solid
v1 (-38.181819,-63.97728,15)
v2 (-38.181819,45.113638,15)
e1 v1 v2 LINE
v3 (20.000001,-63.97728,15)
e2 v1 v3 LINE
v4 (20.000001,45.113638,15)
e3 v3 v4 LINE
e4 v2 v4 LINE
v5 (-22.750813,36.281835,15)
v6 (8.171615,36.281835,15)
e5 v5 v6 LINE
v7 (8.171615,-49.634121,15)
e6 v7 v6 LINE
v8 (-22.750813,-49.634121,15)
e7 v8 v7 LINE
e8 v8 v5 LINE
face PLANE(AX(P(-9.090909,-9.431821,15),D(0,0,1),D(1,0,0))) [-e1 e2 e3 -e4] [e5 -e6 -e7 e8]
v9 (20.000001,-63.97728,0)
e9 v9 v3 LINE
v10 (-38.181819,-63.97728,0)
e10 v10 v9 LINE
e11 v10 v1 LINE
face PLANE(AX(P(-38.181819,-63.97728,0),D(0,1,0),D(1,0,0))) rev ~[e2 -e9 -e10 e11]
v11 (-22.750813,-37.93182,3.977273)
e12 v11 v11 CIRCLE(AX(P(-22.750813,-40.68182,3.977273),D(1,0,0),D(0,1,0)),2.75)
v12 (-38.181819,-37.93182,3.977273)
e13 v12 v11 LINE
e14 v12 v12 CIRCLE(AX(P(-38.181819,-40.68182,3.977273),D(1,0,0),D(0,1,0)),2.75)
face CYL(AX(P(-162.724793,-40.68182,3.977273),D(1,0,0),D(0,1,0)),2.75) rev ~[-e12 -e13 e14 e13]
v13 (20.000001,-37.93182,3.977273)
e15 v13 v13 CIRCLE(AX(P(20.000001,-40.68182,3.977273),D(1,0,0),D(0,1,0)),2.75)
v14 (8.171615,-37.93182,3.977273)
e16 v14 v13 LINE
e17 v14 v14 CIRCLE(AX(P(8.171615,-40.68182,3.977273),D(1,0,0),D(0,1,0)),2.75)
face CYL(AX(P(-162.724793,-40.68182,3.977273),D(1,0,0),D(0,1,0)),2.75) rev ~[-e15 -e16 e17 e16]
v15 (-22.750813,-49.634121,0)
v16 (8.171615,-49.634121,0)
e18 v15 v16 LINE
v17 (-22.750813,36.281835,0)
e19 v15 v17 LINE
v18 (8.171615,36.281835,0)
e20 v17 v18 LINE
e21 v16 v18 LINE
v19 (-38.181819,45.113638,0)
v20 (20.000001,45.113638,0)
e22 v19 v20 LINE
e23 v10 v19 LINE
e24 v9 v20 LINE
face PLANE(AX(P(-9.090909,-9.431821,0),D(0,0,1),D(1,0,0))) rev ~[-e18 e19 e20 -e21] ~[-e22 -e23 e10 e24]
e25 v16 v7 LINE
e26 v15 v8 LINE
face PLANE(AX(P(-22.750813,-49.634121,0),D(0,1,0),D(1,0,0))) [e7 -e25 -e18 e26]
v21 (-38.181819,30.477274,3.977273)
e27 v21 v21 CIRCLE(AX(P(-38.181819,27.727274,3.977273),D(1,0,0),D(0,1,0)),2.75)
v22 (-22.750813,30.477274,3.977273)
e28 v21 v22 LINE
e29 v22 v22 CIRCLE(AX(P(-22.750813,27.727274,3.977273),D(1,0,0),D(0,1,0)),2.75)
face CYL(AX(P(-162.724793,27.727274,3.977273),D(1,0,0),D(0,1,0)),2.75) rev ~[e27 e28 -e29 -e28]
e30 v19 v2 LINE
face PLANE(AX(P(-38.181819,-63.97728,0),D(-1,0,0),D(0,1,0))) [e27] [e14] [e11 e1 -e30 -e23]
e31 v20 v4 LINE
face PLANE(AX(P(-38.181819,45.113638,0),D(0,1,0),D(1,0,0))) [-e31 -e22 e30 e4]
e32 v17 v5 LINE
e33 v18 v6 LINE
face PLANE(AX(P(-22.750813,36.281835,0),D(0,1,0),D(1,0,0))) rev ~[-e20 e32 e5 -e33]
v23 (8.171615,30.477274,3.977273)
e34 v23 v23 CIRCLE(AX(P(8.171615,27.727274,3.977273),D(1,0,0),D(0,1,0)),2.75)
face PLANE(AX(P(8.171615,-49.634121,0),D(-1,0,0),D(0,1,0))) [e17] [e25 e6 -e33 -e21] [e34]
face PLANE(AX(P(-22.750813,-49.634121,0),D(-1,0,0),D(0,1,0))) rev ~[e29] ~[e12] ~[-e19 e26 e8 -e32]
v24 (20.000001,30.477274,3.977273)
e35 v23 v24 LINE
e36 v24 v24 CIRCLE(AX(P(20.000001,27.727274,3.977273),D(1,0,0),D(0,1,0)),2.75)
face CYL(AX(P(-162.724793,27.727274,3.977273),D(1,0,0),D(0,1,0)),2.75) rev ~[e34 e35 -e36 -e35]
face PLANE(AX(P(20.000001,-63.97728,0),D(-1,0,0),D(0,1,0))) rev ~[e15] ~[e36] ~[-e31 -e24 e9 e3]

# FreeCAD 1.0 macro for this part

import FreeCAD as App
import Part
import Sketcher
from FreeCAD import Vector
Q = App.Units.Quantity


def add_polygon(sketch, points):
    """Adds a closed chain of lines whose ends are joined by coincident constraints."""
    first, n = sketch.GeometryCount, len(points)
    for a, b in zip(points, points[1:] + points[:1]):
        sketch.addGeometry(Part.LineSegment(App.Vector(*a, 0), App.Vector(*b, 0)), False)
    for i in range(n):
        sketch.addConstraint(Sketcher.Constraint("Coincident", first + i, 2, first + (i + 1) % n, 1))

doc = App.newDocument("Part")
body = doc.addObject("PartDesign::Body", "Body")

# Sketch on XY plane
sketch1 = doc.addObject("Sketcher::SketchObject", "Sketch")
body.addObject(sketch1)
sketch1.AttachmentSupport = (doc.XY_Plane, [""])
sketch1.MapMode = "FlatFace"
add_polygon(sketch1, [(-38.181819, 45.113638), (-38.181819, -63.97728), (20.000001, -63.97728), (20.000001, 45.113638)])  # lines 0-3
add_polygon(sketch1, [(8.171615, -49.634121), (-22.750813, -49.634121), (-22.750813, 36.281835), (8.171615, 36.281835)])  # lines 4-7
sketch1.addConstraint([
    Sketcher.Constraint("Vertical", 0),
    Sketcher.Constraint("Horizontal", 1),
    Sketcher.Constraint("Vertical", 2),
    Sketcher.Constraint("Horizontal", 3),
    Sketcher.Constraint("Horizontal", 4),
    Sketcher.Constraint("Vertical", 5),
    Sketcher.Constraint("Horizontal", 6),
    Sketcher.Constraint("Vertical", 7),
    Sketcher.Constraint("DistanceX", -1, 1, 1, 2, Q("20.000001 mm")),
    Sketcher.Constraint("DistanceX", 1, 1, 1, 2, Q("58.18182 mm")),
    Sketcher.Constraint("DistanceX", 4, 2, 4, 1, Q("30.922429 mm")),
    Sketcher.Constraint("DistanceY", 0, 2, 0, 1, Q("109.090917 mm")),
    Sketcher.Constraint("DistanceY", 5, 1, 5, 2, Q("85.915956 mm")),
    Sketcher.Constraint("DistanceY", 0, 2, -1, 1, Q("63.97728 mm")),
    Sketcher.Constraint("DistanceY", 4, 2, -1, 1, Q("49.634121 mm")),
    Sketcher.Constraint("DistanceX", 4, 2, -1, 1, Q("22.750813 mm")),
])
pad1 = doc.addObject("PartDesign::Pad", "Pad")
body.addObject(pad1)
pad1.Profile = sketch1
pad1.Length = 15

# Sketch on YZ plane
sketch2 = doc.addObject("Sketcher::SketchObject", "Sketch001")
body.addObject(sketch2)
sketch2.AttachmentSupport = (doc.YZ_Plane, [""])
sketch2.MapMode = "FlatFace"
sketch2.AttachmentOffset = App.Placement(Vector(0, 0, -38.181819), App.Rotation())
sketch2.addGeometry([
    Part.Circle(Vector(27.727274, 3.977273, 0), Vector(0, 0, 1), 2.75),
    Part.Circle(Vector(-40.68182, 3.977273, 0), Vector(0, 0, 1), 2.75),
], False)
sketch2.addConstraint([
    Sketcher.Constraint("Equal", 0, 1),
    Sketcher.Constraint("Horizontal", 0, 3, 1, 3),
    Sketcher.Constraint("Diameter", 0, Q("5.5 mm")),
    Sketcher.Constraint("DistanceX", 1, 3, -1, 1, Q("40.68182 mm")),
    Sketcher.Constraint("DistanceX", -1, 1, 0, 3, Q("27.727274 mm")),
    Sketcher.Constraint("DistanceY", -1, 1, 0, 3, Q("3.977273 mm")),
])
doc.recompute()
hole = doc.addObject("PartDesign::Hole", "Hole")
body.addObject(hole)
hole.Profile = sketch2
hole.ThreadType = "None"
hole.Diameter = 5.5
hole.DepthType = "ThroughAll"
hole.Reversed = True

doc.recompute()
